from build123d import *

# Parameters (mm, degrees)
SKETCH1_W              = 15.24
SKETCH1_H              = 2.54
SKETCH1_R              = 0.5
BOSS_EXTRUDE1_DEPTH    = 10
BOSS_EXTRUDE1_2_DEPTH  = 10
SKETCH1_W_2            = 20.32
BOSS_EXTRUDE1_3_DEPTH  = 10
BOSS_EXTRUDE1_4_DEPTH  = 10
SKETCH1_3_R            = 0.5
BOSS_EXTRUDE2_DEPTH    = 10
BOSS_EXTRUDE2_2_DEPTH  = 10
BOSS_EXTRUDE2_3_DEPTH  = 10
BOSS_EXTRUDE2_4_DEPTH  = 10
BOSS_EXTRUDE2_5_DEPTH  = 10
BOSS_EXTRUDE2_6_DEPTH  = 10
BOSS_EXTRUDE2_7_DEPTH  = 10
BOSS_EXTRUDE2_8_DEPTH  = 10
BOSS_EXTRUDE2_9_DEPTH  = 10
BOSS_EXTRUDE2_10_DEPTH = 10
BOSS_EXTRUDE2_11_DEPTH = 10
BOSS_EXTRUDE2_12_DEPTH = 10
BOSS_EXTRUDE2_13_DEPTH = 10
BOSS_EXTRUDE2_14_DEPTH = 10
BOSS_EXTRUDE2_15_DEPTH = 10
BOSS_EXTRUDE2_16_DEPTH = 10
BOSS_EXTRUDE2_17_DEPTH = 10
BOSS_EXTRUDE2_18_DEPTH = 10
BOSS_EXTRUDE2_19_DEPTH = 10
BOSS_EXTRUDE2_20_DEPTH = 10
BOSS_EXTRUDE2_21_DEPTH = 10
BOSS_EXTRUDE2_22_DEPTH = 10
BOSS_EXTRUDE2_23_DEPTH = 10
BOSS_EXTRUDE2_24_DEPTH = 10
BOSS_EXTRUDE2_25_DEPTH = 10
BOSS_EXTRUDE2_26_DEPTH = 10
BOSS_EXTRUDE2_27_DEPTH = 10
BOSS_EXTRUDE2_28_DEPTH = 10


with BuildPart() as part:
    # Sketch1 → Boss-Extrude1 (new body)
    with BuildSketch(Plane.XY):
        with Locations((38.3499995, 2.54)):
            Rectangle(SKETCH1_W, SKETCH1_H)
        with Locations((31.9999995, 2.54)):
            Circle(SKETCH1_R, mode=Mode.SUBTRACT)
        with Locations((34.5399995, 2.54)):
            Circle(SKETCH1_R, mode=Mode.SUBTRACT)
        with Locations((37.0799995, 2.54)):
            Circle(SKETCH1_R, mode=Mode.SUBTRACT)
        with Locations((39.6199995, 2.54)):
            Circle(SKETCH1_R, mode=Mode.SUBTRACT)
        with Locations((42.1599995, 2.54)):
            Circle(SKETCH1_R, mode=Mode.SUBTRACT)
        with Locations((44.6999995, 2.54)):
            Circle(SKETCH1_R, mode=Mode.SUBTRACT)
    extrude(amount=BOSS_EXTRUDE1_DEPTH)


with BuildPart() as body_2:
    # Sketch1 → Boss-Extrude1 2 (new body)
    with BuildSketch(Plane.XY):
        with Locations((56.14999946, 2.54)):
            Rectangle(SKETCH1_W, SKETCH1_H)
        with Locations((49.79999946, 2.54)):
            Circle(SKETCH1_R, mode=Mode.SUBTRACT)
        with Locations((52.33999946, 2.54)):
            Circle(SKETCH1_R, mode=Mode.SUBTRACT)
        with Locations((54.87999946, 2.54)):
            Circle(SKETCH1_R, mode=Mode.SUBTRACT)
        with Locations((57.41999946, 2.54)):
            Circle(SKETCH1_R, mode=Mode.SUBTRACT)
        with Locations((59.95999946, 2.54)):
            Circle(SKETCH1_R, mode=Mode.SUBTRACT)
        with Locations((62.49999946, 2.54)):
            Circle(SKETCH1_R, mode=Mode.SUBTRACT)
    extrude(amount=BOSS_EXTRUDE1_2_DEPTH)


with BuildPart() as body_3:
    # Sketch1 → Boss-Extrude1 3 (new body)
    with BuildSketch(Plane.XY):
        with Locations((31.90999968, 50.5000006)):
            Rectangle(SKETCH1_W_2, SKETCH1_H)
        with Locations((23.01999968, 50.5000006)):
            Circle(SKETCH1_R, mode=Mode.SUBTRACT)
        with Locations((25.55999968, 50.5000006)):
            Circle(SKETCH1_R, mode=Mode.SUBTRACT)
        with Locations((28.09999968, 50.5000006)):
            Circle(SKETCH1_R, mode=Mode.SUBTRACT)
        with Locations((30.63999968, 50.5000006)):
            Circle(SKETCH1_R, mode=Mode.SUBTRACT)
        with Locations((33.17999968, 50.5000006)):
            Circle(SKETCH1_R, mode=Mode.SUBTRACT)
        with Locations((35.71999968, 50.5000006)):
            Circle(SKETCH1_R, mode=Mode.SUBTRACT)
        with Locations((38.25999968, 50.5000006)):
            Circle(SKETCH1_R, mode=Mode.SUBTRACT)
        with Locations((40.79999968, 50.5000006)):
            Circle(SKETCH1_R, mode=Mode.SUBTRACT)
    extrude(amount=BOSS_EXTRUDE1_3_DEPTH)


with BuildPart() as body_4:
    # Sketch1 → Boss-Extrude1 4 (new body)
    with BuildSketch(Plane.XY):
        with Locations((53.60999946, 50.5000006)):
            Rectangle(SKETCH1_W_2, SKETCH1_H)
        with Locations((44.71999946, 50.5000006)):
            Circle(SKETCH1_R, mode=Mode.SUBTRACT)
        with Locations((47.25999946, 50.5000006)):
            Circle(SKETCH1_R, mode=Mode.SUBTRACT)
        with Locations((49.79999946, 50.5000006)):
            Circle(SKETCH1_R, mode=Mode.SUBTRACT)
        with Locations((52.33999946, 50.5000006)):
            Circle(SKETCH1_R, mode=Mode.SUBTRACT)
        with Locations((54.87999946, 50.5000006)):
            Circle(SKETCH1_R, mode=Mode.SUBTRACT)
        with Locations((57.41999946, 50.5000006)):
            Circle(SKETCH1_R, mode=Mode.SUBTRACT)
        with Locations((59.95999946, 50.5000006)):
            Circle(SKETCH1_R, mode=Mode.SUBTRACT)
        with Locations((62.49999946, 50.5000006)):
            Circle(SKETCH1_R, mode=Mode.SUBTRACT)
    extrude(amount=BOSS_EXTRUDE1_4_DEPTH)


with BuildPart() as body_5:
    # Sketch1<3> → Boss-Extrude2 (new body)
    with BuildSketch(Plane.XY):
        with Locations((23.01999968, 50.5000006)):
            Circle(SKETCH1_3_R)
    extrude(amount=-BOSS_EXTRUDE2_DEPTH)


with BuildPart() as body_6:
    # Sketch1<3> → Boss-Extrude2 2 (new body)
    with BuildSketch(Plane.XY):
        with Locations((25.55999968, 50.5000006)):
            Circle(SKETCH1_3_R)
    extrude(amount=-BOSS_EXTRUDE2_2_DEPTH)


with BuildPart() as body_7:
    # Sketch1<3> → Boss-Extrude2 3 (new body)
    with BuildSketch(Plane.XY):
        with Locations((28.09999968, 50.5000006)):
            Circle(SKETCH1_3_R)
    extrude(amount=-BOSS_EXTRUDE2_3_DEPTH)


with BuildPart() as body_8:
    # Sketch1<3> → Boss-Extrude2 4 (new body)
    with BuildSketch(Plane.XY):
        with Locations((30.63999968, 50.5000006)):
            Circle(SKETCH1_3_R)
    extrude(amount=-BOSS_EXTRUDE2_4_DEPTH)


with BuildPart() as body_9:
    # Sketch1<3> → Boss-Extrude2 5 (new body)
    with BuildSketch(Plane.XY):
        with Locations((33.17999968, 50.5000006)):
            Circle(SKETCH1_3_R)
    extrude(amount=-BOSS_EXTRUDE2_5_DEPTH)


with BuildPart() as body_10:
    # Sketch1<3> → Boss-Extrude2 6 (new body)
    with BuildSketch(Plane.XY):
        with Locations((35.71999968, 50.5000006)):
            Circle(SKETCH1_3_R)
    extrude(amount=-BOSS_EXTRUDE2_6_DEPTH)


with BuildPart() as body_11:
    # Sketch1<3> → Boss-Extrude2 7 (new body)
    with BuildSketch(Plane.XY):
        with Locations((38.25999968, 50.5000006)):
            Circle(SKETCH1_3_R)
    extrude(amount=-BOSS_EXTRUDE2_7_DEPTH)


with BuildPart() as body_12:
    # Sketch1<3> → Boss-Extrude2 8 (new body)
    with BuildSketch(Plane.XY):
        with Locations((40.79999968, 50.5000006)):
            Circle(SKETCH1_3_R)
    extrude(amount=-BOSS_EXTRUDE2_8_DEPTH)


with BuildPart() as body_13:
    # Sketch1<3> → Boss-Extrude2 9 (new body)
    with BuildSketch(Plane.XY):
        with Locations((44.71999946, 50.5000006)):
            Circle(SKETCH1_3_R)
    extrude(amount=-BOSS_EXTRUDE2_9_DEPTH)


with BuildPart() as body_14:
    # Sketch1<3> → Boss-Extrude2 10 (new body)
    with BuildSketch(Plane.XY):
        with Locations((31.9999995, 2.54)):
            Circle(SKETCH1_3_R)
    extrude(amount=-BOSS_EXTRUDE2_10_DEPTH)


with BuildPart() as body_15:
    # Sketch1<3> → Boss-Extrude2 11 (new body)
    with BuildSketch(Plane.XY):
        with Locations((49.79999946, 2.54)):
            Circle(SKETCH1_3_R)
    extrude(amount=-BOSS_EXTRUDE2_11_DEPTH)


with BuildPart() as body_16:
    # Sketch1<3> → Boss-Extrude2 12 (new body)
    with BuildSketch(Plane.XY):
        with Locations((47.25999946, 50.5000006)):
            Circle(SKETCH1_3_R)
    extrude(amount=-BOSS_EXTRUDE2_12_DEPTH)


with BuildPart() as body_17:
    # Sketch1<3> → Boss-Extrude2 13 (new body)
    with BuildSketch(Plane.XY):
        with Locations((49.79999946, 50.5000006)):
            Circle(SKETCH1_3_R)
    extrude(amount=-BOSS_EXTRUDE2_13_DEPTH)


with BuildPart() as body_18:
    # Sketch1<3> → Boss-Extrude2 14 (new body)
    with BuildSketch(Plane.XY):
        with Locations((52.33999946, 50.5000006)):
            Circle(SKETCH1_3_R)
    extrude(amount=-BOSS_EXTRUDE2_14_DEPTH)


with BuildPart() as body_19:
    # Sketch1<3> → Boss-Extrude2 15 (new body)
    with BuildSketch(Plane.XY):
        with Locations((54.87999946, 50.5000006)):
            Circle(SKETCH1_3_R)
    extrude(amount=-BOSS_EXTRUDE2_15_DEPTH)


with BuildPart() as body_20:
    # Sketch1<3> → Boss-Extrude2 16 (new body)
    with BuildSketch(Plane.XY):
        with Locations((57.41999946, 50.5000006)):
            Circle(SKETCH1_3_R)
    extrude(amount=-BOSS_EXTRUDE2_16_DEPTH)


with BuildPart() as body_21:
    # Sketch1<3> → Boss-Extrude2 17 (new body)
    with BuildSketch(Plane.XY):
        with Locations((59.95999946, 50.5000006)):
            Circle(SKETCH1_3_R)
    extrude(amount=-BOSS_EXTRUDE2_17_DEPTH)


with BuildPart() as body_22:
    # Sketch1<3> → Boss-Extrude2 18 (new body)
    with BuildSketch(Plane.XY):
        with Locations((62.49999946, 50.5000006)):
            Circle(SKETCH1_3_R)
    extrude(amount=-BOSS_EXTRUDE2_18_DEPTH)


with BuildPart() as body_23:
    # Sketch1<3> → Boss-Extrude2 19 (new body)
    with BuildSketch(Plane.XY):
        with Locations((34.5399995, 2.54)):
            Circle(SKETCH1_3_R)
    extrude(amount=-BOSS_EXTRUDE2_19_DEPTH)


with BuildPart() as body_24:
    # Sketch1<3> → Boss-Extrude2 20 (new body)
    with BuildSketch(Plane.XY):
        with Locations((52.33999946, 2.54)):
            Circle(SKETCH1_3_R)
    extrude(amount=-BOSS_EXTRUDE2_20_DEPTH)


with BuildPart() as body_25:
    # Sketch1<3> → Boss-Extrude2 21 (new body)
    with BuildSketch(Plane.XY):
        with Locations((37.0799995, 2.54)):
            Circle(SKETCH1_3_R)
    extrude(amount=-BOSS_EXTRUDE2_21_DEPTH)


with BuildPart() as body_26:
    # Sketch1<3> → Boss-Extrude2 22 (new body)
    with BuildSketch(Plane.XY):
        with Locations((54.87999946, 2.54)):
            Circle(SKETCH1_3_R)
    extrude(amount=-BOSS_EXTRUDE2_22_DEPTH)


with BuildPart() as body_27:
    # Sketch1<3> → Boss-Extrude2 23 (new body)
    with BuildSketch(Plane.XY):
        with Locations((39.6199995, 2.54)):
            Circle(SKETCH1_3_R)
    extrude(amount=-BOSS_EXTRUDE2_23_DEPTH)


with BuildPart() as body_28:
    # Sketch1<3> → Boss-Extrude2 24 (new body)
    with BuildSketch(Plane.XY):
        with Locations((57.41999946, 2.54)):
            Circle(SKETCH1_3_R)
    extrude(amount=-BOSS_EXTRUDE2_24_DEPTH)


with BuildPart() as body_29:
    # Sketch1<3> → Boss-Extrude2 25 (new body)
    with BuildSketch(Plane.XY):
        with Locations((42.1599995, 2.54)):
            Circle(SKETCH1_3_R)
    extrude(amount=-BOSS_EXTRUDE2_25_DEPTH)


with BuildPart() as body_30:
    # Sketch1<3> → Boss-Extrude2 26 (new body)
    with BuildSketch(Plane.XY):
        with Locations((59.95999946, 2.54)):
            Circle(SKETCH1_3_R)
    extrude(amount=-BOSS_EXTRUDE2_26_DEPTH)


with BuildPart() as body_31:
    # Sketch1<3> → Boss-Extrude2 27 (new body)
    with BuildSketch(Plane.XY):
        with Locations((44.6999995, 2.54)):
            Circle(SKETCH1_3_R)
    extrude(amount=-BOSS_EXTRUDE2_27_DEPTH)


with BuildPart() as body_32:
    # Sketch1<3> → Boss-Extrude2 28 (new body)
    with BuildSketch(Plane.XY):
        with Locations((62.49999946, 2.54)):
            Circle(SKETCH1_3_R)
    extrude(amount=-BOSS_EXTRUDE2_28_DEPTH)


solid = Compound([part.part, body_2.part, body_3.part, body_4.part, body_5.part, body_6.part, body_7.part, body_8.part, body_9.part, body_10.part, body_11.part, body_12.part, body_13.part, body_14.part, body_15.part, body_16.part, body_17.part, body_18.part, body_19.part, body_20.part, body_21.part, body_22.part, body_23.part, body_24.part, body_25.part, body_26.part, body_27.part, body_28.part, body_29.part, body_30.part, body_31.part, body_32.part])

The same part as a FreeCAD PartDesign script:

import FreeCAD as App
import Part
import Sketcher
Q = App.Units.Quantity


def add_polygon(sketch, points):
    """Adds a closed chain of lines whose ends are joined by coincident constraints."""
    first, n = sketch.GeometryCount, len(points)
    for a, b in zip(points, points[1:] + points[:1]):
        sketch.addGeometry(Part.LineSegment(App.Vector(*a, 0), App.Vector(*b, 0)), False)
    for i in range(n):
        sketch.addConstraint(Sketcher.Constraint("Coincident", first + i, 2, first + (i + 1) % n, 1))

doc = App.newDocument("Part")
body = doc.addObject("PartDesign::Body", "Body")

sketch1 = body.newObject("Sketcher::SketchObject", "Sketch")
sketch1.AttachmentSupport = (doc.getObject("XY_Plane"), [""])
sketch1.MapMode = "FlatFace"
add_polygon(sketch1, [(30.7, 3.8), (30.7, 1.3), (46, 1.3), (46, 3.8)])
sketch1.addGeometry(Part.Circle(App.Vector(32, 2.5, 0), App.Vector(0, 0, 1), 0.5), False)
sketch1.addGeometry(Part.Circle(App.Vector(34.5, 2.5, 0), App.Vector(0, 0, 1), 0.5), False)
sketch1.addGeometry(Part.Circle(App.Vector(37.1, 2.5, 0), App.Vector(0, 0, 1), 0.5), False)
sketch1.addGeometry(Part.Circle(App.Vector(39.6, 2.5, 0), App.Vector(0, 0, 1), 0.5), False)
sketch1.addGeometry(Part.Circle(App.Vector(42.2, 2.5, 0), App.Vector(0, 0, 1), 0.5), False)
sketch1.addGeometry(Part.Circle(App.Vector(44.7, 2.5, 0), App.Vector(0, 0, 1), 0.5), False)
sketch1.addConstraint([
    Sketcher.Constraint("Vertical", 0),
    Sketcher.Constraint("Horizontal", 1),
    Sketcher.Constraint("Vertical", 2),
    Sketcher.Constraint("Horizontal", 3),
    Sketcher.Constraint("Equal", 4, 5),
    Sketcher.Constraint("Equal", 5, 6),
    Sketcher.Constraint("Equal", 6, 7),
    Sketcher.Constraint("Equal", 7, 8),
    Sketcher.Constraint("Equal", 8, 9),
    Sketcher.Constraint("Horizontal", 4, 3, 5, 3),
    Sketcher.Constraint("Horizontal", 5, 3, 6, 3),
    Sketcher.Constraint("Horizontal", 6, 3, 7, 3),
    Sketcher.Constraint("Horizontal", 7, 3, 8, 3),
    Sketcher.Constraint("Horizontal", 8, 3, 9, 3),
    Sketcher.Constraint("DistanceX", 1, 1, 1, 2, Q("0.6 in")),
    Sketcher.Constraint("DistanceY", 0, 2, 0, 1, Q("0.1 in")),
    Sketcher.Constraint("DistanceY", -1, 1, 4, 3, Q("0.1 in")),
    Sketcher.Constraint("DistanceX", 4, 3, 5, 3, Q("0.1 in")),
    Sketcher.Constraint("DistanceX", 5, 3, 6, 3, Q("0.1 in")),
    Sketcher.Constraint("DistanceX", 6, 3, 7, 3, Q("0.1 in")),
    Sketcher.Constraint("DistanceX", 7, 3, 8, 3, Q("0.1 in")),
    Sketcher.Constraint("DistanceX", 8, 3, 9, 3, Q("0.1 in")),
    Sketcher.Constraint("Diameter", 4, Q("1 mm")),
    Sketcher.Constraint("DistanceY", -1, 1, 0, 2, Q("0.05 in")),
    Sketcher.Constraint("DistanceX", 0, 2, 4, 3, Q("0.05 in")),
    Sketcher.Constraint("DistanceX", -1, 1, 4, 3, Q("32 mm")),
])
pad1 = body.newObject("PartDesign::Pad", "Pad")
pad1.Profile = sketch1
pad1.Length = 10
body2 = doc.addObject("PartDesign::Body", "Body001")

sketch2 = body2.newObject("Sketcher::SketchObject", "Sketch001")
sketch2.AttachmentSupport = (doc.getObject("XY_Plane001"), [""])
sketch2.MapMode = "FlatFace"
add_polygon(sketch2, [(48.5, 3.8), (48.5, 1.3), (63.8, 1.3), (63.8, 3.8)])
sketch2.addGeometry(Part.Circle(App.Vector(49.8, 2.5, 0), App.Vector(0, 0, 1), 0.5), False)
sketch2.addGeometry(Part.Circle(App.Vector(52.3, 2.5, 0), App.Vector(0, 0, 1), 0.5), False)
sketch2.addGeometry(Part.Circle(App.Vector(54.9, 2.5, 0), App.Vector(0, 0, 1), 0.5), False)
sketch2.addGeometry(Part.Circle(App.Vector(57.4, 2.5, 0), App.Vector(0, 0, 1), 0.5), False)
sketch2.addGeometry(Part.Circle(App.Vector(60, 2.5, 0), App.Vector(0, 0, 1), 0.5), False)
sketch2.addGeometry(Part.Circle(App.Vector(62.5, 2.5, 0), App.Vector(0, 0, 1), 0.5), False)
sketch2.addConstraint([
    Sketcher.Constraint("Vertical", 0),
    Sketcher.Constraint("Horizontal", 1),
    Sketcher.Constraint("Vertical", 2),
    Sketcher.Constraint("Horizontal", 3),
    Sketcher.Constraint("Equal", 4, 5),
    Sketcher.Constraint("Equal", 5, 6),
    Sketcher.Constraint("Equal", 6, 7),
    Sketcher.Constraint("Equal", 7, 8),
    Sketcher.Constraint("Equal", 8, 9),
    Sketcher.Constraint("Horizontal", 4, 3, 5, 3),
    Sketcher.Constraint("Horizontal", 5, 3, 6, 3),
    Sketcher.Constraint("Horizontal", 6, 3, 7, 3),
    Sketcher.Constraint("Horizontal", 7, 3, 8, 3),
    Sketcher.Constraint("Horizontal", 8, 3, 9, 3),
    Sketcher.Constraint("DistanceX", 1, 1, 1, 2, Q("0.6 in")),
    Sketcher.Constraint("DistanceY", 0, 2, 0, 1, Q("0.1 in")),
    Sketcher.Constraint("DistanceY", -1, 1, 4, 3, Q("0.1 in")),
    Sketcher.Constraint("DistanceX", 4, 3, 5, 3, Q("0.1 in")),
    Sketcher.Constraint("DistanceX", 5, 3, 6, 3, Q("0.1 in")),
    Sketcher.Constraint("DistanceX", 6, 3, 7, 3, Q("0.1 in")),
    Sketcher.Constraint("DistanceX", 7, 3, 8, 3, Q("0.1 in")),
    Sketcher.Constraint("DistanceX", 8, 3, 9, 3, Q("0.1 in")),
    Sketcher.Constraint("Diameter", 4, Q("1 mm")),
    Sketcher.Constraint("DistanceY", -1, 1, 0, 2, Q("0.05 in")),
    Sketcher.Constraint("DistanceX", 0, 2, 4, 3, Q("0.05 in")),
    Sketcher.Constraint("DistanceX", -1, 1, 4, 3, Q("49.799999 mm")),
])
pad2 = body2.newObject("PartDesign::Pad", "Pad001")
pad2.Profile = sketch2
pad2.Length = 10
body3 = doc.addObject("PartDesign::Body", "Body002")

sketch3 = body3.newObject("Sketcher::SketchObject", "Sketch002")
sketch3.AttachmentSupport = (doc.getObject("XY_Plane002"), [""])
sketch3.MapMode = "FlatFace"
add_polygon(sketch3, [(21.7, 51.8), (21.7, 49.2), (42.1, 49.2), (42.1, 51.8)])
sketch3.addGeometry(Part.Circle(App.Vector(23, 50.5, 0), App.Vector(0, 0, 1), 0.5), False)
sketch3.addGeometry(Part.Circle(App.Vector(25.6, 50.5, 0), App.Vector(0, 0, 1), 0.5), False)
sketch3.addGeometry(Part.Circle(App.Vector(28.1, 50.5, 0), App.Vector(0, 0, 1), 0.5), False)
sketch3.addGeometry(Part.Circle(App.Vector(30.6, 50.5, 0), App.Vector(0, 0, 1), 0.5), False)
sketch3.addGeometry(Part.Circle(App.Vector(33.2, 50.5, 0), App.Vector(0, 0, 1), 0.5), False)
sketch3.addGeometry(Part.Circle(App.Vector(35.7, 50.5, 0), App.Vector(0, 0, 1), 0.5), False)
sketch3.addGeometry(Part.Circle(App.Vector(38.3, 50.5, 0), App.Vector(0, 0, 1), 0.5), False)
sketch3.addGeometry(Part.Circle(App.Vector(40.8, 50.5, 0), App.Vector(0, 0, 1), 0.5), False)
sketch3.addConstraint([
    Sketcher.Constraint("Vertical", 0),
    Sketcher.Constraint("Horizontal", 1),
    Sketcher.Constraint("Vertical", 2),
    Sketcher.Constraint("Horizontal", 3),
    Sketcher.Constraint("Equal", 4, 5),
    Sketcher.Constraint("Equal", 5, 6),
    Sketcher.Constraint("Equal", 6, 7),
    Sketcher.Constraint("Equal", 7, 8),
    Sketcher.Constraint("Equal", 8, 9),
    Sketcher.Constraint("Equal", 9, 10),
    Sketcher.Constraint("Equal", 10, 11),
    Sketcher.Constraint("Horizontal", 4, 3, 5, 3),
    Sketcher.Constraint("Horizontal", 5, 3, 6, 3),
    Sketcher.Constraint("Horizontal", 6, 3, 7, 3),
    Sketcher.Constraint("Horizontal", 7, 3, 8, 3),
    Sketcher.Constraint("Horizontal", 8, 3, 9, 3),
    Sketcher.Constraint("Horizontal", 9, 3, 10, 3),
    Sketcher.Constraint("Horizontal", 10, 3, 11, 3),
    Sketcher.Constraint("DistanceX", 1, 1, 1, 2, Q("0.8 in")),
    Sketcher.Constraint("DistanceY", 0, 2, 0, 1, Q("0.1 in")),
    Sketcher.Constraint("DistanceX", 4, 3, 5, 3, Q("0.1 in")),
    Sketcher.Constraint("DistanceX", 5, 3, 6, 3, Q("0.1 in")),
    Sketcher.Constraint("DistanceX", 6, 3, 7, 3, Q("0.1 in")),
    Sketcher.Constraint("DistanceX", 7, 3, 8, 3, Q("0.1 in")),
    Sketcher.Constraint("DistanceX", 8, 3, 9, 3, Q("0.1 in")),
    Sketcher.Constraint("DistanceX", 9, 3, 10, 3, Q("0.1 in")),
    Sketcher.Constraint("DistanceX", 10, 3, 11, 3, Q("0.1 in")),
    Sketcher.Constraint("Diameter", 4, Q("1 mm")),
    Sketcher.Constraint("DistanceX", 0, 2, 4, 3, Q("0.05 in")),
    Sketcher.Constraint("DistanceY", 0, 2, 4, 3, Q("0.05 in")),
    Sketcher.Constraint("DistanceX", -1, 1, 4, 3, Q("23.02 mm")),
    Sketcher.Constraint("DistanceY", -1, 1, 4, 3, Q("50.500001 mm")),
])
pad3 = body3.newObject("PartDesign::Pad", "Pad002")
pad3.Profile = sketch3
pad3.Length = 10
body4 = doc.addObject("PartDesign::Body", "Body003")

sketch4 = body4.newObject("Sketcher::SketchObject", "Sketch003")
sketch4.AttachmentSupport = (doc.getObject("XY_Plane003"), [""])
sketch4.MapMode = "FlatFace"
add_polygon(sketch4, [(43.4, 51.8), (43.4, 49.2), (63.8, 49.2), (63.8, 51.8)])
sketch4.addGeometry(Part.Circle(App.Vector(44.7, 50.5, 0), App.Vector(0, 0, 1), 0.5), False)
sketch4.addGeometry(Part.Circle(App.Vector(47.3, 50.5, 0), App.Vector(0, 0, 1), 0.5), False)
sketch4.addGeometry(Part.Circle(App.Vector(49.8, 50.5, 0), App.Vector(0, 0, 1), 0.5), False)
sketch4.addGeometry(Part.Circle(App.Vector(52.3, 50.5, 0), App.Vector(0, 0, 1), 0.5), False)
sketch4.addGeometry(Part.Circle(App.Vector(54.9, 50.5, 0), App.Vector(0, 0, 1), 0.5), False)
sketch4.addGeometry(Part.Circle(App.Vector(57.4, 50.5, 0), App.Vector(0, 0, 1), 0.5), False)
sketch4.addGeometry(Part.Circle(App.Vector(60, 50.5, 0), App.Vector(0, 0, 1), 0.5), False)
sketch4.addGeometry(Part.Circle(App.Vector(62.5, 50.5, 0), App.Vector(0, 0, 1), 0.5), False)
sketch4.addConstraint([
    Sketcher.Constraint("Vertical", 0),
    Sketcher.Constraint("Horizontal", 1),
    Sketcher.Constraint("Vertical", 2),
    Sketcher.Constraint("Horizontal", 3),
    Sketcher.Constraint("Equal", 4, 5),
    Sketcher.Constraint("Equal", 5, 6),
    Sketcher.Constraint("Equal", 6, 7),
    Sketcher.Constraint("Equal", 7, 8),
    Sketcher.Constraint("Equal", 8, 9),
    Sketcher.Constraint("Equal", 9, 10),
    Sketcher.Constraint("Equal", 10, 11),
    Sketcher.Constraint("Horizontal", 4, 3, 5, 3),
    Sketcher.Constraint("Horizontal", 5, 3, 6, 3),
    Sketcher.Constraint("Horizontal", 6, 3, 7, 3),
    Sketcher.Constraint("Horizontal", 7, 3, 8, 3),
    Sketcher.Constraint("Horizontal", 8, 3, 9, 3),
    Sketcher.Constraint("Horizontal", 9, 3, 10, 3),
    Sketcher.Constraint("Horizontal", 10, 3, 11, 3),
    Sketcher.Constraint("DistanceX", 1, 1, 1, 2, Q("0.8 in")),
    Sketcher.Constraint("DistanceY", 0, 2, 0, 1, Q("0.1 in")),
    Sketcher.Constraint("DistanceX", 4, 3, 5, 3, Q("0.1 in")),
    Sketcher.Constraint("DistanceX", 5, 3, 6, 3, Q("0.1 in")),
    Sketcher.Constraint("DistanceX", 6, 3, 7, 3, Q("0.1 in")),
    Sketcher.Constraint("DistanceX", 7, 3, 8, 3, Q("0.1 in")),
    Sketcher.Constraint("DistanceX", 8, 3, 9, 3, Q("0.1 in")),
    Sketcher.Constraint("DistanceX", 9, 3, 10, 3, Q("0.1 in")),
    Sketcher.Constraint("DistanceX", 10, 3, 11, 3, Q("0.1 in")),
    Sketcher.Constraint("Diameter", 4, Q("1 mm")),
    Sketcher.Constraint("DistanceX", 0, 2, 4, 3, Q("0.05 in")),
    Sketcher.Constraint("DistanceY", 0, 2, 4, 3, Q("0.05 in")),
    Sketcher.Constraint("DistanceX", -1, 1, 4, 3, Q("44.719999 mm")),
    Sketcher.Constraint("DistanceY", -1, 1, 4, 3, Q("50.500001 mm")),
])
pad4 = body4.newObject("PartDesign::Pad", "Pad003")
pad4.Profile = sketch4
pad4.Length = 10
body5 = doc.addObject("PartDesign::Body", "Body004")

sketch5 = body5.newObject("Sketcher::SketchObject", "Sketch004")
sketch5.AttachmentSupport = (doc.getObject("XY_Plane004"), [""])
sketch5.MapMode = "FlatFace"
sketch5.addGeometry(Part.Circle(App.Vector(23, 50.5, 0), App.Vector(0, 0, 1), 0.5), False)
sketch5.addConstraint([
    Sketcher.Constraint("Diameter", 0, Q("1 mm")),
    Sketcher.Constraint("DistanceX", -1, 1, 0, 3, Q("23.02 mm")),
    Sketcher.Constraint("DistanceY", -1, 1, 0, 3, Q("50.500001 mm")),
])
pad5 = body5.newObject("PartDesign::Pad", "Pad004")
pad5.Profile = sketch5
pad5.Length = 10
pad5.Reversed = True
body6 = doc.addObject("PartDesign::Body", "Body005")

sketch6 = body6.newObject("Sketcher::SketchObject", "Sketch005")
sketch6.AttachmentSupport = (doc.getObject("XY_Plane005"), [""])
sketch6.MapMode = "FlatFace"
sketch6.addGeometry(Part.Circle(App.Vector(25.6, 50.5, 0), App.Vector(0, 0, 1), 0.5), False)
sketch6.addConstraint([
    Sketcher.Constraint("Diameter", 0, Q("1 mm")),
    Sketcher.Constraint("DistanceX", -1, 1, 0, 3, Q("25.56 mm")),
    Sketcher.Constraint("DistanceY", -1, 1, 0, 3, Q("50.500001 mm")),
])
pad6 = body6.newObject("PartDesign::Pad", "Pad005")
pad6.Profile = sketch6
pad6.Length = 10
pad6.Reversed = True
body7 = doc.addObject("PartDesign::Body", "Body006")

sketch7 = body7.newObject("Sketcher::SketchObject", "Sketch006")
sketch7.AttachmentSupport = (doc.getObject("XY_Plane006"), [""])
sketch7.MapMode = "FlatFace"
sketch7.addGeometry(Part.Circle(App.Vector(28.1, 50.5, 0), App.Vector(0, 0, 1), 0.5), False)
sketch7.addConstraint([
    Sketcher.Constraint("Diameter", 0, Q("1 mm")),
    Sketcher.Constraint("DistanceX", -1, 1, 0, 3, Q("28.1 mm")),
    Sketcher.Constraint("DistanceY", -1, 1, 0, 3, Q("50.500001 mm")),
])
pad7 = body7.newObject("PartDesign::Pad", "Pad006")
pad7.Profile = sketch7
pad7.Length = 10
pad7.Reversed = True
body8 = doc.addObject("PartDesign::Body", "Body007")

sketch8 = body8.newObject("Sketcher::SketchObject", "Sketch007")
sketch8.AttachmentSupport = (doc.getObject("XY_Plane007"), [""])
sketch8.MapMode = "FlatFace"
sketch8.addGeometry(Part.Circle(App.Vector(30.6, 50.5, 0), App.Vector(0, 0, 1), 0.5), False)
sketch8.addConstraint([
    Sketcher.Constraint("Diameter", 0, Q("1 mm")),
    Sketcher.Constraint("DistanceX", -1, 1, 0, 3, Q("30.64 mm")),
    Sketcher.Constraint("DistanceY", -1, 1, 0, 3, Q("50.500001 mm")),
])
pad8 = body8.newObject("PartDesign::Pad", "Pad007")
pad8.Profile = sketch8
pad8.Length = 10
pad8.Reversed = True
body9 = doc.addObject("PartDesign::Body", "Body008")

sketch9 = body9.newObject("Sketcher::SketchObject", "Sketch008")
sketch9.AttachmentSupport = (doc.getObject("XY_Plane008"), [""])
sketch9.MapMode = "FlatFace"
sketch9.addGeometry(Part.Circle(App.Vector(33.2, 50.5, 0), App.Vector(0, 0, 1), 0.5), False)
sketch9.addConstraint([
    Sketcher.Constraint("Diameter", 0, Q("1 mm")),
    Sketcher.Constraint("DistanceX", -1, 1, 0, 3, Q("33.18 mm")),
    Sketcher.Constraint("DistanceY", -1, 1, 0, 3, Q("50.500001 mm")),
])
pad9 = body9.newObject("PartDesign::Pad", "Pad008")
pad9.Profile = sketch9
pad9.Length = 10
pad9.Reversed = True
body10 = doc.addObject("PartDesign::Body", "Body009")

sketch10 = body10.newObject("Sketcher::SketchObject", "Sketch009")
sketch10.AttachmentSupport = (doc.getObject("XY_Plane009"), [""])
sketch10.MapMode = "FlatFace"
sketch10.addGeometry(Part.Circle(App.Vector(35.7, 50.5, 0), App.Vector(0, 0, 1), 0.5), False)
sketch10.addConstraint([
    Sketcher.Constraint("Diameter", 0, Q("1 mm")),
    Sketcher.Constraint("DistanceX", -1, 1, 0, 3, Q("35.72 mm")),
    Sketcher.Constraint("DistanceY", -1, 1, 0, 3, Q("50.500001 mm")),
])
pad10 = body10.newObject("PartDesign::Pad", "Pad009")
pad10.Profile = sketch10
pad10.Length = 10
pad10.Reversed = True
body11 = doc.addObject("PartDesign::Body", "Body010")

sketch11 = body11.newObject("Sketcher::SketchObject", "Sketch010")
sketch11.AttachmentSupport = (doc.getObject("XY_Plane010"), [""])
sketch11.MapMode = "FlatFace"
sketch11.addGeometry(Part.Circle(App.Vector(38.3, 50.5, 0), App.Vector(0, 0, 1), 0.5), False)
sketch11.addConstraint([
    Sketcher.Constraint("Diameter", 0, Q("1 mm")),
    Sketcher.Constraint("DistanceX", -1, 1, 0, 3, Q("38.26 mm")),
    Sketcher.Constraint("DistanceY", -1, 1, 0, 3, Q("50.500001 mm")),
])
pad11 = body11.newObject("PartDesign::Pad", "Pad010")
pad11.Profile = sketch11
pad11.Length = 10
pad11.Reversed = True
body12 = doc.addObject("PartDesign::Body", "Body011")

sketch12 = body12.newObject("Sketcher::SketchObject", "Sketch011")
sketch12.AttachmentSupport = (doc.getObject("XY_Plane011"), [""])
sketch12.MapMode = "FlatFace"
sketch12.addGeometry(Part.Circle(App.Vector(40.8, 50.5, 0), App.Vector(0, 0, 1), 0.5), False)
sketch12.addConstraint([
    Sketcher.Constraint("Diameter", 0, Q("1 mm")),
    Sketcher.Constraint("DistanceX", -1, 1, 0, 3, Q("40.8 mm")),
    Sketcher.Constraint("DistanceY", -1, 1, 0, 3, Q("50.500001 mm")),
])
pad12 = body12.newObject("PartDesign::Pad", "Pad011")
pad12.Profile = sketch12
pad12.Length = 10
pad12.Reversed = True
body13 = doc.addObject("PartDesign::Body", "Body012")

sketch13 = body13.newObject("Sketcher::SketchObject", "Sketch012")
sketch13.AttachmentSupport = (doc.getObject("XY_Plane012"), [""])
sketch13.MapMode = "FlatFace"
sketch13.addGeometry(Part.Circle(App.Vector(44.7, 50.5, 0), App.Vector(0, 0, 1), 0.5), False)
sketch13.addConstraint([
    Sketcher.Constraint("Diameter", 0, Q("1 mm")),
    Sketcher.Constraint("DistanceX", -1, 1, 0, 3, Q("44.719999 mm")),
    Sketcher.Constraint("DistanceY", -1, 1, 0, 3, Q("50.500001 mm")),
])
pad13 = body13.newObject("PartDesign::Pad", "Pad012")
pad13.Profile = sketch13
pad13.Length = 10
pad13.Reversed = True
body14 = doc.addObject("PartDesign::Body", "Body013")

sketch14 = body14.newObject("Sketcher::SketchObject", "Sketch013")
sketch14.AttachmentSupport = (doc.getObject("XY_Plane013"), [""])
sketch14.MapMode = "FlatFace"
sketch14.addGeometry(Part.Circle(App.Vector(32, 2.5, 0), App.Vector(0, 0, 1), 0.5), False)
sketch14.addConstraint([
    Sketcher.Constraint("DistanceY", -1, 1, 0, 3, Q("0.1 in")),
    Sketcher.Constraint("Diameter", 0, Q("1 mm")),
    Sketcher.Constraint("DistanceX", -1, 1, 0, 3, Q("32 mm")),
])
pad14 = body14.newObject("PartDesign::Pad", "Pad013")
pad14.Profile = sketch14
pad14.Length = 10
pad14.Reversed = True
body15 = doc.addObject("PartDesign::Body", "Body014")

sketch15 = body15.newObject("Sketcher::SketchObject", "Sketch014")
sketch15.AttachmentSupport = (doc.getObject("XY_Plane014"), [""])
sketch15.MapMode = "FlatFace"
sketch15.addGeometry(Part.Circle(App.Vector(49.8, 2.5, 0), App.Vector(0, 0, 1), 0.5), False)
sketch15.addConstraint([
    Sketcher.Constraint("DistanceY", -1, 1, 0, 3, Q("0.1 in")),
    Sketcher.Constraint("Diameter", 0, Q("1 mm")),
    Sketcher.Constraint("DistanceX", -1, 1, 0, 3, Q("49.799999 mm")),
])
pad15 = body15.newObject("PartDesign::Pad", "Pad014")
pad15.Profile = sketch15
pad15.Length = 10
pad15.Reversed = True
body16 = doc.addObject("PartDesign::Body", "Body015")

sketch16 = body16.newObject("Sketcher::SketchObject", "Sketch015")
sketch16.AttachmentSupport = (doc.getObject("XY_Plane015"), [""])
sketch16.MapMode = "FlatFace"
sketch16.addGeometry(Part.Circle(App.Vector(47.3, 50.5, 0), App.Vector(0, 0, 1), 0.5), False)
sketch16.addConstraint([
    Sketcher.Constraint("Diameter", 0, Q("1 mm")),
    Sketcher.Constraint("DistanceX", -1, 1, 0, 3, Q("47.259999 mm")),
    Sketcher.Constraint("DistanceY", -1, 1, 0, 3, Q("50.500001 mm")),
])
pad16 = body16.newObject("PartDesign::Pad", "Pad015")
pad16.Profile = sketch16
pad16.Length = 10
pad16.Reversed = True
body17 = doc.addObject("PartDesign::Body", "Body016")

sketch17 = body17.newObject("Sketcher::SketchObject", "Sketch016")
sketch17.AttachmentSupport = (doc.getObject("XY_Plane016"), [""])
sketch17.MapMode = "FlatFace"
sketch17.addGeometry(Part.Circle(App.Vector(49.8, 50.5, 0), App.Vector(0, 0, 1), 0.5), False)
sketch17.addConstraint([
    Sketcher.Constraint("Diameter", 0, Q("1 mm")),
    Sketcher.Constraint("DistanceX", -1, 1, 0, 3, Q("49.799999 mm")),
    Sketcher.Constraint("DistanceY", -1, 1, 0, 3, Q("50.500001 mm")),
])
pad17 = body17.newObject("PartDesign::Pad", "Pad016")
pad17.Profile = sketch17
pad17.Length = 10
pad17.Reversed = True
body18 = doc.addObject("PartDesign::Body", "Body017")

sketch18 = body18.newObject("Sketcher::SketchObject", "Sketch017")
sketch18.AttachmentSupport = (doc.getObject("XY_Plane017"), [""])
sketch18.MapMode = "FlatFace"
sketch18.addGeometry(Part.Circle(App.Vector(52.3, 50.5, 0), App.Vector(0, 0, 1), 0.5), False)
sketch18.addConstraint([
    Sketcher.Constraint("Diameter", 0, Q("1 mm")),
    Sketcher.Constraint("DistanceX", -1, 1, 0, 3, Q("52.339999 mm")),
    Sketcher.Constraint("DistanceY", -1, 1, 0, 3, Q("50.500001 mm")),
])
pad18 = body18.newObject("PartDesign::Pad", "Pad017")
pad18.Profile = sketch18
pad18.Length = 10
pad18.Reversed = True
body19 = doc.addObject("PartDesign::Body", "Body018")

sketch19 = body19.newObject("Sketcher::SketchObject", "Sketch018")
sketch19.AttachmentSupport = (doc.getObject("XY_Plane018"), [""])
sketch19.MapMode = "FlatFace"
sketch19.addGeometry(Part.Circle(App.Vector(54.9, 50.5, 0), App.Vector(0, 0, 1), 0.5), False)
sketch19.addConstraint([
    Sketcher.Constraint("Diameter", 0, Q("1 mm")),
    Sketcher.Constraint("DistanceX", -1, 1, 0, 3, Q("54.879999 mm")),
    Sketcher.Constraint("DistanceY", -1, 1, 0, 3, Q("50.500001 mm")),
])
pad19 = body19.newObject("PartDesign::Pad", "Pad018")
pad19.Profile = sketch19
pad19.Length = 10
pad19.Reversed = True
body20 = doc.addObject("PartDesign::Body", "Body019")

sketch20 = body20.newObject("Sketcher::SketchObject", "Sketch019")
sketch20.AttachmentSupport = (doc.getObject("XY_Plane019"), [""])
sketch20.MapMode = "FlatFace"
sketch20.addGeometry(Part.Circle(App.Vector(57.4, 50.5, 0), App.Vector(0, 0, 1), 0.5), False)
sketch20.addConstraint([
    Sketcher.Constraint("Diameter", 0, Q("1 mm")),
    Sketcher.Constraint("DistanceX", -1, 1, 0, 3, Q("57.419999 mm")),
    Sketcher.Constraint("DistanceY", -1, 1, 0, 3, Q("50.500001 mm")),
])
pad20 = body20.newObject("PartDesign::Pad", "Pad019")
pad20.Profile = sketch20
pad20.Length = 10
pad20.Reversed = True
body21 = doc.addObject("PartDesign::Body", "Body020")

sketch21 = body21.newObject("Sketcher::SketchObject", "Sketch020")
sketch21.AttachmentSupport = (doc.getObject("XY_Plane020"), [""])
sketch21.MapMode = "FlatFace"
sketch21.addGeometry(Part.Circle(App.Vector(60, 50.5, 0), App.Vector(0, 0, 1), 0.5), False)
sketch21.addConstraint([
    Sketcher.Constraint("Diameter", 0, Q("1 mm")),
    Sketcher.Constraint("DistanceX", -1, 1, 0, 3, Q("59.959999 mm")),
    Sketcher.Constraint("DistanceY", -1, 1, 0, 3, Q("50.500001 mm")),
])
pad21 = body21.newObject("PartDesign::Pad", "Pad020")
pad21.Profile = sketch21
pad21.Length = 10
pad21.Reversed = True
body22 = doc.addObject("PartDesign::Body", "Body021")

sketch22 = body22.newObject("Sketcher::SketchObject", "Sketch021")
sketch22.AttachmentSupport = (doc.getObject("XY_Plane021"), [""])
sketch22.MapMode = "FlatFace"
sketch22.addGeometry(Part.Circle(App.Vector(62.5, 50.5, 0), App.Vector(0, 0, 1), 0.5), False)
sketch22.addConstraint([
    Sketcher.Constraint("Diameter", 0, Q("1 mm")),
    Sketcher.Constraint("DistanceX", -1, 1, 0, 3, Q("62.499999 mm")),
    Sketcher.Constraint("DistanceY", -1, 1, 0, 3, Q("50.500001 mm")),
])
pad22 = body22.newObject("PartDesign::Pad", "Pad021")
pad22.Profile = sketch22
pad22.Length = 10
pad22.Reversed = True
body23 = doc.addObject("PartDesign::Body", "Body022")

sketch23 = body23.newObject("Sketcher::SketchObject", "Sketch022")
sketch23.AttachmentSupport = (doc.getObject("XY_Plane022"), [""])
sketch23.MapMode = "FlatFace"
sketch23.addGeometry(Part.Circle(App.Vector(34.5, 2.5, 0), App.Vector(0, 0, 1), 0.5), False)
sketch23.addConstraint([
    Sketcher.Constraint("DistanceY", -1, 1, 0, 3, Q("0.1 in")),
    Sketcher.Constraint("Diameter", 0, Q("1 mm")),
    Sketcher.Constraint("DistanceX", -1, 1, 0, 3, Q("34.54 mm")),
])
pad23 = body23.newObject("PartDesign::Pad", "Pad022")
pad23.Profile = sketch23
pad23.Length = 10
pad23.Reversed = True
body24 = doc.addObject("PartDesign::Body", "Body023")

sketch24 = body24.newObject("Sketcher::SketchObject", "Sketch023")
sketch24.AttachmentSupport = (doc.getObject("XY_Plane023"), [""])
sketch24.MapMode = "FlatFace"
sketch24.addGeometry(Part.Circle(App.Vector(52.3, 2.5, 0), App.Vector(0, 0, 1), 0.5), False)
sketch24.addConstraint([
    Sketcher.Constraint("DistanceY", -1, 1, 0, 3, Q("0.1 in")),
    Sketcher.Constraint("Diameter", 0, Q("1 mm")),
    Sketcher.Constraint("DistanceX", -1, 1, 0, 3, Q("52.339999 mm")),
])
pad24 = body24.newObject("PartDesign::Pad", "Pad023")
pad24.Profile = sketch24
pad24.Length = 10
pad24.Reversed = True
body25 = doc.addObject("PartDesign::Body", "Body024")

sketch25 = body25.newObject("Sketcher::SketchObject", "Sketch024")
sketch25.AttachmentSupport = (doc.getObject("XY_Plane024"), [""])
sketch25.MapMode = "FlatFace"
sketch25.addGeometry(Part.Circle(App.Vector(37.1, 2.5, 0), App.Vector(0, 0, 1), 0.5), False)
sketch25.addConstraint([
    Sketcher.Constraint("DistanceY", -1, 1, 0, 3, Q("0.1 in")),
    Sketcher.Constraint("Diameter", 0, Q("1 mm")),
    Sketcher.Constraint("DistanceX", -1, 1, 0, 3, Q("37.079999 mm")),
])
pad25 = body25.newObject("PartDesign::Pad", "Pad024")
pad25.Profile = sketch25
pad25.Length = 10
pad25.Reversed = True
body26 = doc.addObject("PartDesign::Body", "Body025")

sketch26 = body26.newObject("Sketcher::SketchObject", "Sketch025")
sketch26.AttachmentSupport = (doc.getObject("XY_Plane025"), [""])
sketch26.MapMode = "FlatFace"
sketch26.addGeometry(Part.Circle(App.Vector(54.9, 2.5, 0), App.Vector(0, 0, 1), 0.5), False)
sketch26.addConstraint([
    Sketcher.Constraint("DistanceY", -1, 1, 0, 3, Q("0.1 in")),
    Sketcher.Constraint("Diameter", 0, Q("1 mm")),
    Sketcher.Constraint("DistanceX", -1, 1, 0, 3, Q("54.879999 mm")),
])
pad26 = body26.newObject("PartDesign::Pad", "Pad025")
pad26.Profile = sketch26
pad26.Length = 10
pad26.Reversed = True
body27 = doc.addObject("PartDesign::Body", "Body026")

sketch27 = body27.newObject("Sketcher::SketchObject", "Sketch026")
sketch27.AttachmentSupport = (doc.getObject("XY_Plane026"), [""])
sketch27.MapMode = "FlatFace"
sketch27.addGeometry(Part.Circle(App.Vector(39.6, 2.5, 0), App.Vector(0, 0, 1), 0.5), False)
sketch27.addConstraint([
    Sketcher.Constraint("DistanceY", -1, 1, 0, 3, Q("0.1 in")),
    Sketcher.Constraint("Diameter", 0, Q("1 mm")),
    Sketcher.Constraint("DistanceX", -1, 1, 0, 3, Q("39.619999 mm")),
])
pad27 = body27.newObject("PartDesign::Pad", "Pad026")
pad27.Profile = sketch27
pad27.Length = 10
pad27.Reversed = True
body28 = doc.addObject("PartDesign::Body", "Body027")

sketch28 = body28.newObject("Sketcher::SketchObject", "Sketch027")
sketch28.AttachmentSupport = (doc.getObject("XY_Plane027"), [""])
sketch28.MapMode = "FlatFace"
sketch28.addGeometry(Part.Circle(App.Vector(57.4, 2.5, 0), App.Vector(0, 0, 1), 0.5), False)
sketch28.addConstraint([
    Sketcher.Constraint("DistanceY", -1, 1, 0, 3, Q("0.1 in")),
    Sketcher.Constraint("Diameter", 0, Q("1 mm")),
    Sketcher.Constraint("DistanceX", -1, 1, 0, 3, Q("57.419999 mm")),
])
pad28 = body28.newObject("PartDesign::Pad", "Pad027")
pad28.Profile = sketch28
pad28.Length = 10
pad28.Reversed = True
body29 = doc.addObject("PartDesign::Body", "Body028")

sketch29 = body29.newObject("Sketcher::SketchObject", "Sketch028")
sketch29.AttachmentSupport = (doc.getObject("XY_Plane028"), [""])
sketch29.MapMode = "FlatFace"
sketch29.addGeometry(Part.Circle(App.Vector(42.2, 2.5, 0), App.Vector(0, 0, 1), 0.5), False)
sketch29.addConstraint([
    Sketcher.Constraint("DistanceY", -1, 1, 0, 3, Q("0.1 in")),
    Sketcher.Constraint("Diameter", 0, Q("1 mm")),
    Sketcher.Constraint("DistanceX", -1, 1, 0, 3, Q("42.159999 mm")),
])
pad29 = body29.newObject("PartDesign::Pad", "Pad028")
pad29.Profile = sketch29
pad29.Length = 10
pad29.Reversed = True
body30 = doc.addObject("PartDesign::Body", "Body029")

sketch30 = body30.newObject("Sketcher::SketchObject", "Sketch029")
sketch30.AttachmentSupport = (doc.getObject("XY_Plane029"), [""])
sketch30.MapMode = "FlatFace"
sketch30.addGeometry(Part.Circle(App.Vector(60, 2.5, 0), App.Vector(0, 0, 1), 0.5), False)
sketch30.addConstraint([
    Sketcher.Constraint("DistanceY", -1, 1, 0, 3, Q("0.1 in")),
    Sketcher.Constraint("Diameter", 0, Q("1 mm")),
    Sketcher.Constraint("DistanceX", -1, 1, 0, 3, Q("59.959999 mm")),
])
pad30 = body30.newObject("PartDesign::Pad", "Pad029")
pad30.Profile = sketch30
pad30.Length = 10
pad30.Reversed = True
body31 = doc.addObject("PartDesign::Body", "Body030")

sketch31 = body31.newObject("Sketcher::SketchObject", "Sketch030")
sketch31.AttachmentSupport = (doc.getObject("XY_Plane030"), [""])
sketch31.MapMode = "FlatFace"
sketch31.addGeometry(Part.Circle(App.Vector(44.7, 2.5, 0), App.Vector(0, 0, 1), 0.5), False)
sketch31.addConstraint([
    Sketcher.Constraint("DistanceY", -1, 1, 0, 3, Q("0.1 in")),
    Sketcher.Constraint("Diameter", 0, Q("1 mm")),
    Sketcher.Constraint("DistanceX", -1, 1, 0, 3, Q("44.699999 mm")),
])
pad31 = body31.newObject("PartDesign::Pad", "Pad030")
pad31.Profile = sketch31
pad31.Length = 10
pad31.Reversed = True
body32 = doc.addObject("PartDesign::Body", "Body031")

sketch32 = body32.newObject("Sketcher::SketchObject", "Sketch031")
sketch32.AttachmentSupport = (doc.getObject("XY_Plane031"), [""])
sketch32.MapMode = "FlatFace"
sketch32.addGeometry(Part.Circle(App.Vector(62.5, 2.5, 0), App.Vector(0, 0, 1), 0.5), False)
sketch32.addConstraint([
    Sketcher.Constraint("DistanceY", -1, 1, 0, 3, Q("0.1 in")),
    Sketcher.Constraint("Diameter", 0, Q("1 mm")),
    Sketcher.Constraint("DistanceX", -1, 1, 0, 3, Q("62.499999 mm")),
])
pad32 = body32.newObject("PartDesign::Pad", "Pad031")
pad32.Profile = sketch32
pad32.Length = 10
pad32.Reversed = True

doc.recompute()
